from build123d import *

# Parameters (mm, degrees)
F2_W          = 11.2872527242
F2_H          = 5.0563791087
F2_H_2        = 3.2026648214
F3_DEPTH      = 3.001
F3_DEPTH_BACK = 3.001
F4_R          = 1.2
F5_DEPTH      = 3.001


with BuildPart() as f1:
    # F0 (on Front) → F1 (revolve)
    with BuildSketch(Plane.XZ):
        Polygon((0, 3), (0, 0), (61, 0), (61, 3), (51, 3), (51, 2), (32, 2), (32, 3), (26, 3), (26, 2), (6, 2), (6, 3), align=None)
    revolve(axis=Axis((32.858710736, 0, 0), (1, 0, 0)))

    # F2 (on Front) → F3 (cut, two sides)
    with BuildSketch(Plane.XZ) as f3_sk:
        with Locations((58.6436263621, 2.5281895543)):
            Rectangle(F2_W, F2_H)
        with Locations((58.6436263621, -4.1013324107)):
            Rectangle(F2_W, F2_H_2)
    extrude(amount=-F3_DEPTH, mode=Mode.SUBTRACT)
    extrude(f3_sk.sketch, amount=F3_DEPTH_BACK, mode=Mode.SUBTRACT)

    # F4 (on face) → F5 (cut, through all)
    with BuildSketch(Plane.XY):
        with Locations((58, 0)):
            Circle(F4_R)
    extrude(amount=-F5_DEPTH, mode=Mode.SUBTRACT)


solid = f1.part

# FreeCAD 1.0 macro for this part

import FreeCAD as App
import Part
import Sketcher

V = App.Vector


def add_polygon(sketch, points):
    """Adds a closed chain of lines whose ends are joined by coincident constraints."""
    first, n = sketch.GeometryCount, len(points)
    for a, b in zip(points, points[1:] + points[:1]):
        sketch.addGeometry(Part.LineSegment(App.Vector(*a, 0), App.Vector(*b, 0)), False)
    for i in range(n):
        sketch.addConstraint(Sketcher.Constraint("Coincident", first + i, 2, first + (i + 1) % n, 1))

doc = App.newDocument("Part")
body = doc.addObject("PartDesign::Body", "Body")

# Sketch on XZ plane
sketch1 = body.newObject("Sketcher::SketchObject", "Sketch")
sketch1.AttachmentSupport = (doc.getObject("XZ_Plane"), [""])
sketch1.MapMode = "FlatFace"
add_polygon(sketch1, [(0, 3), (0, 0), (61, 0), (61, 3), (51, 3), (51, 2), (32, 2), (32, 3), (26, 3), (26, 2), (6, 2), (6, 3)])  # lines 0-11
sketch1.addConstraint(Sketcher.Constraint("Vertical", 0))
sketch1.addConstraint(Sketcher.Constraint("Horizontal", 1))
sketch1.addConstraint(Sketcher.Constraint("Vertical", 2))
sketch1.addConstraint(Sketcher.Constraint("Horizontal", 3))
sketch1.addConstraint(Sketcher.Constraint("Vertical", 4))
sketch1.addConstraint(Sketcher.Constraint("Horizontal", 5))
sketch1.addConstraint(Sketcher.Constraint("Vertical", 6))
sketch1.addConstraint(Sketcher.Constraint("Horizontal", 7))
sketch1.addConstraint(Sketcher.Constraint("Vertical", 8))
sketch1.addConstraint(Sketcher.Constraint("Horizontal", 9))
sketch1.addConstraint(Sketcher.Constraint("Vertical", 10))
sketch1.addConstraint(Sketcher.Constraint("Horizontal", 11))
sketch1.addConstraint(Sketcher.Constraint("Coincident", 0, 2, -1, 1))
sketch1.addConstraint(Sketcher.Constraint("Horizontal", 3, 2, 6, 2))
sketch1.addConstraint(Sketcher.Constraint("Horizontal", 5, 2, 8, 2))
sketch1.addConstraint(Sketcher.Constraint("Horizontal", 7, 2, 10, 2))
sketch1.addConstraint(Sketcher.Constraint("Equal", 7, 11))
sketch1.addConstraint(Sketcher.Constraint("DistanceX", 1, 1, 1, 2, 61.0))
sketch1.addConstraint(Sketcher.Constraint("DistanceX", 3, 2, 3, 1, 10.0))
sketch1.addConstraint(Sketcher.Constraint("DistanceX", 5, 2, 5, 1, 19.0))
sketch1.addConstraint(Sketcher.Constraint("DistanceX", 7, 2, 7, 1, 6.0))
sketch1.addConstraint(Sketcher.Constraint("DistanceY", 0, 2, 0, 1, 3.0))
sketch1.addConstraint(Sketcher.Constraint("DistanceY", 4, 2, 4, 1, 1.0))
revolution = body.newObject("PartDesign::Revolution", "Revolution")
revolution.Profile = sketch1
revolution.ReferenceAxis = (sketch1, ["H_Axis"])
revolution.Angle = 360

# Sketch on XZ plane
sketch2 = body.newObject("Sketcher::SketchObject", "Sketch001")
sketch2.AttachmentSupport = (doc.getObject("XZ_Plane"), [""])
sketch2.MapMode = "FlatFace"
add_polygon(sketch2, [(53, 5.056379), (53, 0), (64.287253, 0), (64.287253, 5.056379)])  # lines 0-3
add_polygon(sketch2, [(53, -2.5), (53, -5.702665), (64.287253, -5.702665), (64.287253, -2.5)])  # lines 4-7
sketch2.addConstraint(Sketcher.Constraint("Vertical", 0))
sketch2.addConstraint(Sketcher.Constraint("Horizontal", 1))
sketch2.addConstraint(Sketcher.Constraint("Vertical", 2))
sketch2.addConstraint(Sketcher.Constraint("Horizontal", 3))
sketch2.addConstraint(Sketcher.Constraint("Vertical", 4))
sketch2.addConstraint(Sketcher.Constraint("Horizontal", 5))
sketch2.addConstraint(Sketcher.Constraint("Vertical", 6))
sketch2.addConstraint(Sketcher.Constraint("Horizontal", 7))
sketch2.addConstraint(Sketcher.Constraint("PointOnObject", 0, 2, -1))
sketch2.addConstraint(Sketcher.Constraint("Vertical", 3, 2, 4, 2))
sketch2.addConstraint(Sketcher.Constraint("Vertical", 2, 2, 5, 2))
sketch2.addConstraint(Sketcher.Constraint("DistanceX", -1, 1, 0, 2, 53.0))
sketch2.addConstraint(Sketcher.Constraint("DistanceY", 6, 2, -1, 1, 2.5))
sketch2.addConstraint(Sketcher.Constraint("DistanceY", 0, 2, 0, 1, 5.056379))
sketch2.addConstraint(Sketcher.Constraint("DistanceX", 1, 1, 1, 2, 11.287253))
sketch2.addConstraint(Sketcher.Constraint("DistanceY", 4, 2, 4, 1, 3.202665))
pocket1 = body.newObject("PartDesign::Pocket", "Pocket")
pocket1.Profile = sketch2
pocket1.Type = "ThroughAll"
pocket1.Midplane = True

# Sketch on XY plane
sketch3 = body.newObject("Sketcher::SketchObject", "Sketch002")
sketch3.AttachmentSupport = (doc.getObject("XY_Plane"), [""])
sketch3.MapMode = "FlatFace"
sketch3.addGeometry(Part.Circle(V(58, 0, 0), V(0, 0, 1), 1.2), False)
sketch3.addConstraint(Sketcher.Constraint("PointOnObject", 0, 3, -1))
sketch3.addConstraint(Sketcher.Constraint("Diameter", 0, 2.4))
sketch3.addConstraint(Sketcher.Constraint("DistanceX", -1, 1, 0, 3, 58.0))
pocket2 = body.newObject("PartDesign::Pocket", "Pocket001")
pocket2.Profile = sketch3
pocket2.Type = "ThroughAll"

doc.recompute()
